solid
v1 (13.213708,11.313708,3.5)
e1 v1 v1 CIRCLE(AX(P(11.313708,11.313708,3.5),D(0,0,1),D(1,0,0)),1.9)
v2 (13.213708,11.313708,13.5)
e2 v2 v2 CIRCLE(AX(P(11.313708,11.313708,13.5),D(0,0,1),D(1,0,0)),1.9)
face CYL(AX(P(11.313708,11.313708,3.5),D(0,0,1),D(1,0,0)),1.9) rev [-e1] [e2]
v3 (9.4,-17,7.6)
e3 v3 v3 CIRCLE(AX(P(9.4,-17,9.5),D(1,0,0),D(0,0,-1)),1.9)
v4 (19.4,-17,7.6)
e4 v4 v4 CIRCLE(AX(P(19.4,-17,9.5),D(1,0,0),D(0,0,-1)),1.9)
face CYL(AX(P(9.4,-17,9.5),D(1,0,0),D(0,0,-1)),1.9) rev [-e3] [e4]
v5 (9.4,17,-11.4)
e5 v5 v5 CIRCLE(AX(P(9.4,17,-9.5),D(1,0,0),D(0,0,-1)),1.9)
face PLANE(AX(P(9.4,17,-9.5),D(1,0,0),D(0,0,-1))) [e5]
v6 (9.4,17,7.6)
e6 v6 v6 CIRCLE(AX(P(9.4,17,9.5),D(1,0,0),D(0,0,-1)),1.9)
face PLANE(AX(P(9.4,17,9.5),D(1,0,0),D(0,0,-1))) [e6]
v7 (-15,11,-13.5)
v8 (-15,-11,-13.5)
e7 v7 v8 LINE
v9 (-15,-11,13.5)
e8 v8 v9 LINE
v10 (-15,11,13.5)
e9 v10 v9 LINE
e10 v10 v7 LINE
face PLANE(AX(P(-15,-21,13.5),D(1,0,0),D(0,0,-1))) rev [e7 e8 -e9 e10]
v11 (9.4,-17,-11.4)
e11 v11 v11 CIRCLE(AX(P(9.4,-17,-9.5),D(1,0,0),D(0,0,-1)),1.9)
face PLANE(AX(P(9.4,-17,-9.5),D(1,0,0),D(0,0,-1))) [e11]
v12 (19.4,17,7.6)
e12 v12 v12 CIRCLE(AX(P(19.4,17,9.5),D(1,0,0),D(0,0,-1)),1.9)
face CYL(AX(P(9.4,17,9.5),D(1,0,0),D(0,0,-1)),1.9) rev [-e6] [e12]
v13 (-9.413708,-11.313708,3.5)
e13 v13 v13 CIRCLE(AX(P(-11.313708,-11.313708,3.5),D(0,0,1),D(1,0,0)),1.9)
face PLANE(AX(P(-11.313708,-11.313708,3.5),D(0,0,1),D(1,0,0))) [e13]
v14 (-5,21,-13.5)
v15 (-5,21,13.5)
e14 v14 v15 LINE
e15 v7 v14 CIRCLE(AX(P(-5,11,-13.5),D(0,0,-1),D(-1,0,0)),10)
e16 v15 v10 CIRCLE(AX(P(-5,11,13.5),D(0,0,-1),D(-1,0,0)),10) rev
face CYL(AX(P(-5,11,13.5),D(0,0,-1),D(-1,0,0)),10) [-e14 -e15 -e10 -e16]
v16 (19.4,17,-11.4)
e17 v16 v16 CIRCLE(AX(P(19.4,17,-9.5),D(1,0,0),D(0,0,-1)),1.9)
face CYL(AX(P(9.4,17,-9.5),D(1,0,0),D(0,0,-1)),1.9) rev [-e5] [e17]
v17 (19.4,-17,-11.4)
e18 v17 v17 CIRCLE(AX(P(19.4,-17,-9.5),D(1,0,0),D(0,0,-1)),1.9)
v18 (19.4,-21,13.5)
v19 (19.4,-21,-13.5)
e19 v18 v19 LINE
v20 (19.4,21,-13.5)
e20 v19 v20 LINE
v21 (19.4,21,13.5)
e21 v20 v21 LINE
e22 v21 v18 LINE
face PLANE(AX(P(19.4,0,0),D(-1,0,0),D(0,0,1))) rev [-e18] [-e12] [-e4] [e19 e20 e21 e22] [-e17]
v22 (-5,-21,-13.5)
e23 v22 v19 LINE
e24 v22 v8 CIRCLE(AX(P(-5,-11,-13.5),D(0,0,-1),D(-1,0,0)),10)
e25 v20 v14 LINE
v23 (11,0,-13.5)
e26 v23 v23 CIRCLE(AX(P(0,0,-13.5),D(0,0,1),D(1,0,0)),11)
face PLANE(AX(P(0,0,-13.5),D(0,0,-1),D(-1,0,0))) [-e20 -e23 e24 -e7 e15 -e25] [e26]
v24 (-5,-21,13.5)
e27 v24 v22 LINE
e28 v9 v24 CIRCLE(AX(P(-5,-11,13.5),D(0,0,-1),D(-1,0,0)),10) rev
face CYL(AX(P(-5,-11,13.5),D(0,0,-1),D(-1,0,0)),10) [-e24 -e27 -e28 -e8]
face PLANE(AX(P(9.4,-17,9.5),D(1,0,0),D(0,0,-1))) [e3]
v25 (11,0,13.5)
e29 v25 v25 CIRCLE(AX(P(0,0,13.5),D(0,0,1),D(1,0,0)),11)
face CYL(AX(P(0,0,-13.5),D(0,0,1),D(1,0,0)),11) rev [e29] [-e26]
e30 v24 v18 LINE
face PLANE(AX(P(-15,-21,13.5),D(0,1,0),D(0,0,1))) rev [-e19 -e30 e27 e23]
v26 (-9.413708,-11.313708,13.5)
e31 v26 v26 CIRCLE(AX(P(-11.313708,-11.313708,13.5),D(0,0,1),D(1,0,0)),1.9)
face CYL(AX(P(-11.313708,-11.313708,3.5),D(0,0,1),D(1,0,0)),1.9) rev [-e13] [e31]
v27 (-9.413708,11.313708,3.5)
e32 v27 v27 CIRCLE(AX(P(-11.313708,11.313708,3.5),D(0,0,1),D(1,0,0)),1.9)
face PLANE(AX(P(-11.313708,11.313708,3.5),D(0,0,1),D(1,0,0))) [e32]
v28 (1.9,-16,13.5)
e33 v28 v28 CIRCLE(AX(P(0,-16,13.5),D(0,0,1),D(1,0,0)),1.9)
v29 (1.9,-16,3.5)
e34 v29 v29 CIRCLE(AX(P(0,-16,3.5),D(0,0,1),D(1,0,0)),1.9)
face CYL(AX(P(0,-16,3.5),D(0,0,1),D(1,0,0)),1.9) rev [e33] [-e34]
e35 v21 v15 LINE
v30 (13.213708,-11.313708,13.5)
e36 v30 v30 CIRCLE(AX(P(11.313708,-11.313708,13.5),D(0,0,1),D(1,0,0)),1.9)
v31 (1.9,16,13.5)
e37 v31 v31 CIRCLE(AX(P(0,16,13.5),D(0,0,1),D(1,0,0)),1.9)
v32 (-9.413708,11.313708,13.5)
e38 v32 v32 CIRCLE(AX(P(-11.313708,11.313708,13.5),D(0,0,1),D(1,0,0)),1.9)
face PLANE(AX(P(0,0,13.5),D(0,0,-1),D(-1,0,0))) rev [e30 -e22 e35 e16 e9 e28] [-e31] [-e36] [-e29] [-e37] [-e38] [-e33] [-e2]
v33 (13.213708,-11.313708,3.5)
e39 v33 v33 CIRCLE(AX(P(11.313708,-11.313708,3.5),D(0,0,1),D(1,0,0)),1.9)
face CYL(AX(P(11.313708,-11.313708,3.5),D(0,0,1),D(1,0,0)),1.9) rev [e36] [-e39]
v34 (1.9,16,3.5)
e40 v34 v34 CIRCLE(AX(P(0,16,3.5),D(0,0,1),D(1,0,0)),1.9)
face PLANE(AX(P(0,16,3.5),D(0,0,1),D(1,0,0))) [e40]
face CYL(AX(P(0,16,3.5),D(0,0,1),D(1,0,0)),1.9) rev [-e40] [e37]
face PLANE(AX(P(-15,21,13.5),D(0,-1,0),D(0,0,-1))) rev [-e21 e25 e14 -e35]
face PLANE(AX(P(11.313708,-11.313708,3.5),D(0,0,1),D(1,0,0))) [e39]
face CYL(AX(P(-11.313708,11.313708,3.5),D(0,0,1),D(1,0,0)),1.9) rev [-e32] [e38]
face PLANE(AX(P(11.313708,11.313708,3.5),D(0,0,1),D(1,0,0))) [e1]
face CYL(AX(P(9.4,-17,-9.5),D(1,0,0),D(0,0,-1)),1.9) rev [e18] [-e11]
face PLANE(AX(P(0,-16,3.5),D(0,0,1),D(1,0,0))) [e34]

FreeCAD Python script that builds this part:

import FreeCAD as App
import Part
import Sketcher


def edges_at(feature, points):
    """Names of the edges that pass closest to the given points."""
    edges = feature.Shape.Edges
    near = lambda p: min(range(len(edges)), key=lambda i: edges[i].distToShape(Part.Vertex(*p))[0])
    return sorted({f"Edge{near(p) + 1}" for p in points})

doc = App.newDocument("Part")
params = doc.addObject("Spreadsheet::Sheet", "Params")
for row, (alias, value) in enumerate([
    ("sketch1_width", "30 mm"),
    ("sketch1_height", "42 mm"),
    ("pad1_length", "27 mm"),
    ("sketch2_diameter", "22 mm"),
    ("sketch3_diameter", "3.8 mm"),
    ("pocket2_length", "10 mm"),
    ("sketch4_width", "42 mm"),
    ("sketch4_height", "27 mm"),
    ("pad2_length", "4.4 mm"),
    ("sketch5_diameter", "3.8 mm"),
    ("pocket3_length", "10 mm"),
    ("fillet_radius", "10 mm"),
], start=1):
    params.set(f"A{row}", alias)
    params.set(f"B{row}", "=" + value)
    params.setAlias(f"B{row}", alias)

body = doc.addObject("PartDesign::Body", "Body")

sketch1 = body.newObject("Sketcher::SketchObject", "Sketch")
sketch1.AttachmentSupport = (doc.getObject("XY_Plane"), [""])
sketch1.MapMode = "FlatFace"
sketch1.addGeometry(Part.LineSegment(App.Vector(-15, 21, 0), App.Vector(-15, -21, 0)), False)
sketch1.addGeometry(Part.LineSegment(App.Vector(-15, -21, 0), App.Vector(15, -21, 0)), False)
sketch1.addGeometry(Part.LineSegment(App.Vector(15, -21, 0), App.Vector(15, 21, 0)), False)
sketch1.addGeometry(Part.LineSegment(App.Vector(15, 21, 0), App.Vector(-15, 21, 0)), False)
sketch1.addConstraint(Sketcher.Constraint("Coincident", 0, 2, 1, 1))
sketch1.addConstraint(Sketcher.Constraint("Coincident", 1, 2, 2, 1))
sketch1.addConstraint(Sketcher.Constraint("Coincident", 2, 2, 3, 1))
sketch1.addConstraint(Sketcher.Constraint("Coincident", 3, 2, 0, 1))
sketch1.addConstraint(Sketcher.Constraint("Vertical", 0))
sketch1.addConstraint(Sketcher.Constraint("Horizontal", 1))
sketch1.addConstraint(Sketcher.Constraint("Vertical", 2))
sketch1.addConstraint(Sketcher.Constraint("Horizontal", 3))
sketch1.addConstraint(Sketcher.Constraint("Symmetric", 0, 2, 2, 2, -1, 1))
sketch1.addConstraint(Sketcher.Constraint("DistanceX", 1, 1, 1, 2, 30.0))
sketch1.addConstraint(Sketcher.Constraint("DistanceY", 0, 2, 0, 1, 42.0))
sketch1.setExpression("Constraints[9]", "Params.sketch1_width")
sketch1.setExpression("Constraints[10]", "Params.sketch1_height")
pad1 = body.newObject("PartDesign::Pad", "Pad")
pad1.Profile = sketch1
pad1.setExpression("Length", "Params.pad1_length")
pad1.Midplane = True

sketch2 = body.newObject("Sketcher::SketchObject", "Sketch001")
sketch2.AttachmentSupport = (doc.getObject("XY_Plane"), [""])
sketch2.MapMode = "FlatFace"
sketch2.AttachmentOffset = App.Placement(App.Vector(0, 0, 13.5), App.Rotation())
sketch2.addGeometry(Part.Circle(App.Vector(0, 0, 0), App.Vector(0, 0, 1), 11), False)
sketch2.addConstraint(Sketcher.Constraint("Coincident", 0, 3, -1, 1))
sketch2.addConstraint(Sketcher.Constraint("Diameter", 0, 22.0))
sketch2.setExpression("Constraints[1]", "Params.sketch2_diameter")
pocket1 = body.newObject("PartDesign::Pocket", "Pocket")
pocket1.Profile = sketch2
pocket1.Type = "ThroughAll"

sketch3 = body.newObject("Sketcher::SketchObject", "Sketch002")
sketch3.AttachmentSupport = (doc.getObject("XY_Plane"), [""])
sketch3.MapMode = "FlatFace"
sketch3.AttachmentOffset = App.Placement(App.Vector(0, 0, 13.5), App.Rotation())
sketch3.addGeometry(Part.Circle(App.Vector(-11.3, 11.3, 0), App.Vector(0, 0, 1), 1.9), False)
sketch3.addGeometry(Part.Circle(App.Vector(0, 16, 0), App.Vector(0, 0, 1), 1.9), False)
sketch3.addGeometry(Part.Circle(App.Vector(11.3, 11.3, 0), App.Vector(0, 0, 1), 1.9), False)
sketch3.addGeometry(Part.Circle(App.Vector(11.3, -11.3, 0), App.Vector(0, 0, 1), 1.9), False)
sketch3.addGeometry(Part.Circle(App.Vector(0, -16, 0), App.Vector(0, 0, 1), 1.9), False)
sketch3.addGeometry(Part.Circle(App.Vector(-11.3, -11.3, 0), App.Vector(0, 0, 1), 1.9), False)
sketch3.addConstraint(Sketcher.Constraint("Equal", 0, 1))
sketch3.addConstraint(Sketcher.Constraint("Equal", 1, 2))
sketch3.addConstraint(Sketcher.Constraint("Equal", 2, 3))
sketch3.addConstraint(Sketcher.Constraint("Equal", 3, 4))
sketch3.addConstraint(Sketcher.Constraint("Equal", 4, 5))
sketch3.addConstraint(Sketcher.Constraint("Symmetric", 0, 3, 3, 3, -1, 1))
sketch3.addConstraint(Sketcher.Constraint("Symmetric", 1, 3, 4, 3, -1, 1))
sketch3.addConstraint(Sketcher.Constraint("Symmetric", 2, 3, 5, 3, -1, 1))
sketch3.addConstraint(Sketcher.Constraint("Symmetric", 0, 3, 2, 3, -2))
sketch3.addConstraint(Sketcher.Constraint("PointOnObject", 1, 3, -2))
sketch3.addConstraint(Sketcher.Constraint("Diameter", 0, 3.8))
sketch3.addConstraint(Sketcher.Constraint("DistanceY", -1, 1, 1, 3, 16.0))
sketch3.addConstraint(Sketcher.Constraint("DistanceX", 0, 3, -1, 1, 11.313708))
sketch3.addConstraint(Sketcher.Constraint("DistanceY", -1, 1, 0, 3, 11.313708))
sketch3.setExpression("Constraints[10]", "Params.sketch3_diameter")
pocket2 = body.newObject("PartDesign::Pocket", "Pocket001")
pocket2.Profile = sketch3
pocket2.setExpression("Length", "Params.pocket2_length")

sketch4 = body.newObject("Sketcher::SketchObject", "Sketch003")
sketch4.AttachmentSupport = (doc.getObject("YZ_Plane"), [""])
sketch4.MapMode = "FlatFace"
sketch4.AttachmentOffset = App.Placement(App.Vector(0, 0, 15), App.Rotation())
sketch4.addGeometry(Part.LineSegment(App.Vector(21, 14, 0), App.Vector(-21, 14, 0)), False)
sketch4.addGeometry(Part.LineSegment(App.Vector(-21, 14, 0), App.Vector(-21, -14, 0)), False)
sketch4.addGeometry(Part.LineSegment(App.Vector(-21, -14, 0), App.Vector(21, -14, 0)), False)
sketch4.addGeometry(Part.LineSegment(App.Vector(21, -14, 0), App.Vector(21, 14, 0)), False)
sketch4.addConstraint(Sketcher.Constraint("Coincident", 0, 2, 1, 1))
sketch4.addConstraint(Sketcher.Constraint("Coincident", 1, 2, 2, 1))
sketch4.addConstraint(Sketcher.Constraint("Coincident", 2, 2, 3, 1))
sketch4.addConstraint(Sketcher.Constraint("Coincident", 3, 2, 0, 1))
sketch4.addConstraint(Sketcher.Constraint("Horizontal", 0))
sketch4.addConstraint(Sketcher.Constraint("Vertical", 1))
sketch4.addConstraint(Sketcher.Constraint("Horizontal", 2))
sketch4.addConstraint(Sketcher.Constraint("Vertical", 3))
sketch4.addConstraint(Sketcher.Constraint("Symmetric", 0, 2, 2, 2, -1, 1))
sketch4.addConstraint(Sketcher.Constraint("DistanceX", 0, 2, 0, 1, 42.0))
sketch4.addConstraint(Sketcher.Constraint("DistanceY", 1, 2, 1, 1, 27.0))
sketch4.setExpression("Constraints[9]", "Params.sketch4_width")
sketch4.setExpression("Constraints[10]", "Params.sketch4_height")
pad2 = body.newObject("PartDesign::Pad", "Pad001")
pad2.Profile = sketch4
pad2.setExpression("Length", "Params.pad2_length")

sketch5 = body.newObject("Sketcher::SketchObject", "Sketch004")
sketch5.AttachmentSupport = (doc.getObject("YZ_Plane"), [""])
sketch5.MapMode = "FlatFace"
sketch5.AttachmentOffset = App.Placement(App.Vector(0, 0, 19.4), App.Rotation())
sketch5.addGeometry(Part.Circle(App.Vector(17, -9.5, 0), App.Vector(0, 0, 1), 1.9), False)
sketch5.addGeometry(Part.Circle(App.Vector(17, 9.5, 0), App.Vector(0, 0, 1), 1.9), False)
sketch5.addGeometry(Part.Circle(App.Vector(-17, -9.5, 0), App.Vector(0, 0, 1), 1.9), False)
sketch5.addGeometry(Part.Circle(App.Vector(-17, 9.5, 0), App.Vector(0, 0, 1), 1.9), False)
sketch5.addConstraint(Sketcher.Constraint("Equal", 0, 1))
sketch5.addConstraint(Sketcher.Constraint("Equal", 1, 2))
sketch5.addConstraint(Sketcher.Constraint("Equal", 2, 3))
sketch5.addConstraint(Sketcher.Constraint("Symmetric", 1, 3, 2, 3, -1, 1))
sketch5.addConstraint(Sketcher.Constraint("Symmetric", 0, 3, 3, 3, -1, 1))
sketch5.addConstraint(Sketcher.Constraint("Symmetric", 0, 3, 2, 3, -2))
sketch5.addConstraint(Sketcher.Constraint("Diameter", 0, 3.8))
sketch5.addConstraint(Sketcher.Constraint("DistanceX", -1, 1, 0, 3, 17.0))
sketch5.addConstraint(Sketcher.Constraint("DistanceY", 0, 3, 1, 3, 19.0))
sketch5.setExpression("Constraints[6]", "Params.sketch5_diameter")
pocket3 = body.newObject("PartDesign::Pocket", "Pocket002")
pocket3.Profile = sketch5
pocket3.setExpression("Length", "Params.pocket3_length")
doc.recompute()

fillet = body.newObject("PartDesign::Fillet", "Fillet")
fillet.Base = (pocket3, edges_at(pocket3, [(-15, -21, 0), (-15, 21, 0)]))
fillet.setExpression("Radius", "Params.fillet_radius")

doc.recompute()
